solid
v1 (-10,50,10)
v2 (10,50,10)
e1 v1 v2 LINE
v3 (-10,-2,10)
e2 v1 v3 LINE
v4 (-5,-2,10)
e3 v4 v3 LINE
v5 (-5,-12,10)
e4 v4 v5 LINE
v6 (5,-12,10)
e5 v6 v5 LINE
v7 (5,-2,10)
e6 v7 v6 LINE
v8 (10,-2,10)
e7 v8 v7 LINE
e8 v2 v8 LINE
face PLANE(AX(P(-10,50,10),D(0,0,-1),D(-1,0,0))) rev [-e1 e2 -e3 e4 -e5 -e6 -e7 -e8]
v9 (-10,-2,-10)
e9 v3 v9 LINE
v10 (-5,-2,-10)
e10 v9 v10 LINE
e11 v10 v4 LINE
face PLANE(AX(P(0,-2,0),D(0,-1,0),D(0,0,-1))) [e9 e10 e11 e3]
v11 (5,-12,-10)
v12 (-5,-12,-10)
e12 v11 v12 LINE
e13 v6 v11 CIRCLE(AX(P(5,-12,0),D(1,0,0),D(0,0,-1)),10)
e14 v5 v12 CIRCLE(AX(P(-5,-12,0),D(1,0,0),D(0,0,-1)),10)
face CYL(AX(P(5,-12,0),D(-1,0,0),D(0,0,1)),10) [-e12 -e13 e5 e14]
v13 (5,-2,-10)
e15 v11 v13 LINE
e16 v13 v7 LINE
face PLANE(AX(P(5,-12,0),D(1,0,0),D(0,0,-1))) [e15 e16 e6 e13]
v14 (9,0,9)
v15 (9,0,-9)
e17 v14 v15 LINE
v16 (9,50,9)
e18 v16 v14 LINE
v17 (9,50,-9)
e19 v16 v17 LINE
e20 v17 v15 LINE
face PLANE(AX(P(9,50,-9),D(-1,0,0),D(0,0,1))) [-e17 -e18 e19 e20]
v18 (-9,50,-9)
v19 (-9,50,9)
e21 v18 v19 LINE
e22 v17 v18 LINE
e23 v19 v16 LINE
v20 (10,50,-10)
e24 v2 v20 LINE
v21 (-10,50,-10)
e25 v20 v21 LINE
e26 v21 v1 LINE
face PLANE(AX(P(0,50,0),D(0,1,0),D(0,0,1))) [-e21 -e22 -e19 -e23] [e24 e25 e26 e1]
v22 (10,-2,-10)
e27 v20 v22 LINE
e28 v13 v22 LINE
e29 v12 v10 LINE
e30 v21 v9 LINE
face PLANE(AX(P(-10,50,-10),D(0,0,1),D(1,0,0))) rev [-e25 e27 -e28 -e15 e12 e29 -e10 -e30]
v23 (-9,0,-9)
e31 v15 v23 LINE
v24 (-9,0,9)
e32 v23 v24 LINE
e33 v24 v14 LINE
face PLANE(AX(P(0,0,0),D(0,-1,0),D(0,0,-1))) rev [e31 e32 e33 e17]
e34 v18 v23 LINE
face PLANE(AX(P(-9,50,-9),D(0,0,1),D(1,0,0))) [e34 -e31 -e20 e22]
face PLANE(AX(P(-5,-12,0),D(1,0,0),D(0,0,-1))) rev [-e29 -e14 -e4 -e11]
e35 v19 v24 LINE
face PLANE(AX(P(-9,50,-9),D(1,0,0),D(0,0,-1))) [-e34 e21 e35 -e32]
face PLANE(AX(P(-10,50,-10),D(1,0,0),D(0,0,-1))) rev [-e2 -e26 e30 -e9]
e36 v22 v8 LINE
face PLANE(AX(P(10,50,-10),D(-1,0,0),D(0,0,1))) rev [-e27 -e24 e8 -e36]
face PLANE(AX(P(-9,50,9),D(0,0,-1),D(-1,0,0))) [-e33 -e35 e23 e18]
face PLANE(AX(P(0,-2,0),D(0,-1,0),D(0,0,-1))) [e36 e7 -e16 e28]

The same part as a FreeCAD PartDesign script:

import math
import FreeCAD as App
import Part
import Sketcher


def add_polygon(sketch, points):
    """Adds a closed chain of lines whose ends are joined by coincident constraints."""
    first, n = sketch.GeometryCount, len(points)
    for a, b in zip(points, points[1:] + points[:1]):
        sketch.addGeometry(Part.LineSegment(App.Vector(*a, 0), App.Vector(*b, 0)), False)
    for i in range(n):
        sketch.addConstraint(Sketcher.Constraint("Coincident", first + i, 2, first + (i + 1) % n, 1))

doc = App.newDocument("Part")
body = doc.addObject("PartDesign::Body", "Body")

# Sketch on XZ plane
sketch1 = body.newObject("Sketcher::SketchObject", "Sketch")
sketch1.AttachmentSupport = (doc.getObject("XZ_Plane"), [""])
sketch1.MapMode = "FlatFace"
add_polygon(sketch1, [(-10, -10), (-10, 10), (10, 10), (10, -10)])  # lines 0-3
add_polygon(sketch1, [(9, 9), (-9, 9), (-9, -9), (9, -9)])  # lines 4-7
sketch1.addConstraint([
    Sketcher.Constraint("Vertical", 0),
    Sketcher.Constraint("Horizontal", 1),
    Sketcher.Constraint("Vertical", 2),
    Sketcher.Constraint("Horizontal", 3),
    Sketcher.Constraint("Horizontal", 4),
    Sketcher.Constraint("Vertical", 5),
    Sketcher.Constraint("Horizontal", 6),
    Sketcher.Constraint("Vertical", 7),
    Sketcher.Constraint("Symmetric", 0, 2, 2, 2, -1, 1),
    Sketcher.Constraint("Symmetric", 4, 2, 6, 2, -1, 1),
    Sketcher.Constraint("Equal", 3, 0),
    Sketcher.Constraint("Equal", 6, 5),
    Sketcher.Constraint("DistanceX", 1, 1, 1, 2, 20.0),
    Sketcher.Constraint("DistanceX", 4, 2, 4, 1, 18.0),
])
pad1 = body.newObject("PartDesign::Pad", "Pad")
pad1.Profile = sketch1
pad1.Length = 50
pad1.Reversed = True

# Sketch on XZ plane
sketch2 = body.newObject("Sketcher::SketchObject", "Sketch001")
sketch2.AttachmentSupport = (doc.getObject("XZ_Plane"), [""])
sketch2.MapMode = "FlatFace"
add_polygon(sketch2, [(-10, 10), (-10, -10), (10, -10), (10, 10)])  # lines 0-3
sketch2.addConstraint([
    Sketcher.Constraint("Vertical", 0),
    Sketcher.Constraint("Horizontal", 1),
    Sketcher.Constraint("Vertical", 2),
    Sketcher.Constraint("Horizontal", 3),
    Sketcher.Constraint("Symmetric", 0, 2, 2, 2, -1, 1),
    Sketcher.Constraint("Equal", 3, 0),
    Sketcher.Constraint("DistanceX", 1, 1, 1, 2, 20.0),
])
pad2 = body.newObject("PartDesign::Pad", "Pad001")
pad2.Profile = sketch2
pad2.Length = 2

# Sketch on YZ plane
sketch3 = body.newObject("Sketcher::SketchObject", "Sketch002")
sketch3.AttachmentSupport = (doc.getObject("YZ_Plane"), [""])
sketch3.MapMode = "FlatFace"
sketch3.addGeometry([
    Part.LineSegment(App.Vector(-2, -10, 0), App.Vector(-2, 10, 0)),
    Part.LineSegment(App.Vector(-2, 10, 0), App.Vector(-12, 10, 0)),
    Part.ArcOfCircle(Part.Circle(App.Vector(-12, 0, 0), App.Vector(0, 0, 1), 10), math.radians(90), math.radians(270)),
    Part.LineSegment(App.Vector(-12, -10, 0), App.Vector(-2, -10, 0)),
], False)
sketch3.addConstraint([
    Sketcher.Constraint("Coincident", 0, 2, 1, 1),
    Sketcher.Constraint("Tangent", 1, 2, 2, 1),
    Sketcher.Constraint("Tangent", 2, 2, 3, 1),
    Sketcher.Constraint("Coincident", 3, 2, 0, 1),
    Sketcher.Constraint("Vertical", 0),
    Sketcher.Constraint("Horizontal", 1),
    Sketcher.Constraint("Horizontal", 3),
    Sketcher.Constraint("PointOnObject", 2, 3, -1),
    Sketcher.Constraint("Radius", 2, 10.0),
    Sketcher.Constraint("DistanceX", 1, 2, 1, 1, 10.0),
    Sketcher.Constraint("DistanceX", 2, 3, -1, 1, 12.0),
])
pad3 = body.newObject("PartDesign::Pad", "Pad002")
pad3.Profile = sketch3
pad3.Length = 10
pad3.Midplane = True

doc.recompute()
